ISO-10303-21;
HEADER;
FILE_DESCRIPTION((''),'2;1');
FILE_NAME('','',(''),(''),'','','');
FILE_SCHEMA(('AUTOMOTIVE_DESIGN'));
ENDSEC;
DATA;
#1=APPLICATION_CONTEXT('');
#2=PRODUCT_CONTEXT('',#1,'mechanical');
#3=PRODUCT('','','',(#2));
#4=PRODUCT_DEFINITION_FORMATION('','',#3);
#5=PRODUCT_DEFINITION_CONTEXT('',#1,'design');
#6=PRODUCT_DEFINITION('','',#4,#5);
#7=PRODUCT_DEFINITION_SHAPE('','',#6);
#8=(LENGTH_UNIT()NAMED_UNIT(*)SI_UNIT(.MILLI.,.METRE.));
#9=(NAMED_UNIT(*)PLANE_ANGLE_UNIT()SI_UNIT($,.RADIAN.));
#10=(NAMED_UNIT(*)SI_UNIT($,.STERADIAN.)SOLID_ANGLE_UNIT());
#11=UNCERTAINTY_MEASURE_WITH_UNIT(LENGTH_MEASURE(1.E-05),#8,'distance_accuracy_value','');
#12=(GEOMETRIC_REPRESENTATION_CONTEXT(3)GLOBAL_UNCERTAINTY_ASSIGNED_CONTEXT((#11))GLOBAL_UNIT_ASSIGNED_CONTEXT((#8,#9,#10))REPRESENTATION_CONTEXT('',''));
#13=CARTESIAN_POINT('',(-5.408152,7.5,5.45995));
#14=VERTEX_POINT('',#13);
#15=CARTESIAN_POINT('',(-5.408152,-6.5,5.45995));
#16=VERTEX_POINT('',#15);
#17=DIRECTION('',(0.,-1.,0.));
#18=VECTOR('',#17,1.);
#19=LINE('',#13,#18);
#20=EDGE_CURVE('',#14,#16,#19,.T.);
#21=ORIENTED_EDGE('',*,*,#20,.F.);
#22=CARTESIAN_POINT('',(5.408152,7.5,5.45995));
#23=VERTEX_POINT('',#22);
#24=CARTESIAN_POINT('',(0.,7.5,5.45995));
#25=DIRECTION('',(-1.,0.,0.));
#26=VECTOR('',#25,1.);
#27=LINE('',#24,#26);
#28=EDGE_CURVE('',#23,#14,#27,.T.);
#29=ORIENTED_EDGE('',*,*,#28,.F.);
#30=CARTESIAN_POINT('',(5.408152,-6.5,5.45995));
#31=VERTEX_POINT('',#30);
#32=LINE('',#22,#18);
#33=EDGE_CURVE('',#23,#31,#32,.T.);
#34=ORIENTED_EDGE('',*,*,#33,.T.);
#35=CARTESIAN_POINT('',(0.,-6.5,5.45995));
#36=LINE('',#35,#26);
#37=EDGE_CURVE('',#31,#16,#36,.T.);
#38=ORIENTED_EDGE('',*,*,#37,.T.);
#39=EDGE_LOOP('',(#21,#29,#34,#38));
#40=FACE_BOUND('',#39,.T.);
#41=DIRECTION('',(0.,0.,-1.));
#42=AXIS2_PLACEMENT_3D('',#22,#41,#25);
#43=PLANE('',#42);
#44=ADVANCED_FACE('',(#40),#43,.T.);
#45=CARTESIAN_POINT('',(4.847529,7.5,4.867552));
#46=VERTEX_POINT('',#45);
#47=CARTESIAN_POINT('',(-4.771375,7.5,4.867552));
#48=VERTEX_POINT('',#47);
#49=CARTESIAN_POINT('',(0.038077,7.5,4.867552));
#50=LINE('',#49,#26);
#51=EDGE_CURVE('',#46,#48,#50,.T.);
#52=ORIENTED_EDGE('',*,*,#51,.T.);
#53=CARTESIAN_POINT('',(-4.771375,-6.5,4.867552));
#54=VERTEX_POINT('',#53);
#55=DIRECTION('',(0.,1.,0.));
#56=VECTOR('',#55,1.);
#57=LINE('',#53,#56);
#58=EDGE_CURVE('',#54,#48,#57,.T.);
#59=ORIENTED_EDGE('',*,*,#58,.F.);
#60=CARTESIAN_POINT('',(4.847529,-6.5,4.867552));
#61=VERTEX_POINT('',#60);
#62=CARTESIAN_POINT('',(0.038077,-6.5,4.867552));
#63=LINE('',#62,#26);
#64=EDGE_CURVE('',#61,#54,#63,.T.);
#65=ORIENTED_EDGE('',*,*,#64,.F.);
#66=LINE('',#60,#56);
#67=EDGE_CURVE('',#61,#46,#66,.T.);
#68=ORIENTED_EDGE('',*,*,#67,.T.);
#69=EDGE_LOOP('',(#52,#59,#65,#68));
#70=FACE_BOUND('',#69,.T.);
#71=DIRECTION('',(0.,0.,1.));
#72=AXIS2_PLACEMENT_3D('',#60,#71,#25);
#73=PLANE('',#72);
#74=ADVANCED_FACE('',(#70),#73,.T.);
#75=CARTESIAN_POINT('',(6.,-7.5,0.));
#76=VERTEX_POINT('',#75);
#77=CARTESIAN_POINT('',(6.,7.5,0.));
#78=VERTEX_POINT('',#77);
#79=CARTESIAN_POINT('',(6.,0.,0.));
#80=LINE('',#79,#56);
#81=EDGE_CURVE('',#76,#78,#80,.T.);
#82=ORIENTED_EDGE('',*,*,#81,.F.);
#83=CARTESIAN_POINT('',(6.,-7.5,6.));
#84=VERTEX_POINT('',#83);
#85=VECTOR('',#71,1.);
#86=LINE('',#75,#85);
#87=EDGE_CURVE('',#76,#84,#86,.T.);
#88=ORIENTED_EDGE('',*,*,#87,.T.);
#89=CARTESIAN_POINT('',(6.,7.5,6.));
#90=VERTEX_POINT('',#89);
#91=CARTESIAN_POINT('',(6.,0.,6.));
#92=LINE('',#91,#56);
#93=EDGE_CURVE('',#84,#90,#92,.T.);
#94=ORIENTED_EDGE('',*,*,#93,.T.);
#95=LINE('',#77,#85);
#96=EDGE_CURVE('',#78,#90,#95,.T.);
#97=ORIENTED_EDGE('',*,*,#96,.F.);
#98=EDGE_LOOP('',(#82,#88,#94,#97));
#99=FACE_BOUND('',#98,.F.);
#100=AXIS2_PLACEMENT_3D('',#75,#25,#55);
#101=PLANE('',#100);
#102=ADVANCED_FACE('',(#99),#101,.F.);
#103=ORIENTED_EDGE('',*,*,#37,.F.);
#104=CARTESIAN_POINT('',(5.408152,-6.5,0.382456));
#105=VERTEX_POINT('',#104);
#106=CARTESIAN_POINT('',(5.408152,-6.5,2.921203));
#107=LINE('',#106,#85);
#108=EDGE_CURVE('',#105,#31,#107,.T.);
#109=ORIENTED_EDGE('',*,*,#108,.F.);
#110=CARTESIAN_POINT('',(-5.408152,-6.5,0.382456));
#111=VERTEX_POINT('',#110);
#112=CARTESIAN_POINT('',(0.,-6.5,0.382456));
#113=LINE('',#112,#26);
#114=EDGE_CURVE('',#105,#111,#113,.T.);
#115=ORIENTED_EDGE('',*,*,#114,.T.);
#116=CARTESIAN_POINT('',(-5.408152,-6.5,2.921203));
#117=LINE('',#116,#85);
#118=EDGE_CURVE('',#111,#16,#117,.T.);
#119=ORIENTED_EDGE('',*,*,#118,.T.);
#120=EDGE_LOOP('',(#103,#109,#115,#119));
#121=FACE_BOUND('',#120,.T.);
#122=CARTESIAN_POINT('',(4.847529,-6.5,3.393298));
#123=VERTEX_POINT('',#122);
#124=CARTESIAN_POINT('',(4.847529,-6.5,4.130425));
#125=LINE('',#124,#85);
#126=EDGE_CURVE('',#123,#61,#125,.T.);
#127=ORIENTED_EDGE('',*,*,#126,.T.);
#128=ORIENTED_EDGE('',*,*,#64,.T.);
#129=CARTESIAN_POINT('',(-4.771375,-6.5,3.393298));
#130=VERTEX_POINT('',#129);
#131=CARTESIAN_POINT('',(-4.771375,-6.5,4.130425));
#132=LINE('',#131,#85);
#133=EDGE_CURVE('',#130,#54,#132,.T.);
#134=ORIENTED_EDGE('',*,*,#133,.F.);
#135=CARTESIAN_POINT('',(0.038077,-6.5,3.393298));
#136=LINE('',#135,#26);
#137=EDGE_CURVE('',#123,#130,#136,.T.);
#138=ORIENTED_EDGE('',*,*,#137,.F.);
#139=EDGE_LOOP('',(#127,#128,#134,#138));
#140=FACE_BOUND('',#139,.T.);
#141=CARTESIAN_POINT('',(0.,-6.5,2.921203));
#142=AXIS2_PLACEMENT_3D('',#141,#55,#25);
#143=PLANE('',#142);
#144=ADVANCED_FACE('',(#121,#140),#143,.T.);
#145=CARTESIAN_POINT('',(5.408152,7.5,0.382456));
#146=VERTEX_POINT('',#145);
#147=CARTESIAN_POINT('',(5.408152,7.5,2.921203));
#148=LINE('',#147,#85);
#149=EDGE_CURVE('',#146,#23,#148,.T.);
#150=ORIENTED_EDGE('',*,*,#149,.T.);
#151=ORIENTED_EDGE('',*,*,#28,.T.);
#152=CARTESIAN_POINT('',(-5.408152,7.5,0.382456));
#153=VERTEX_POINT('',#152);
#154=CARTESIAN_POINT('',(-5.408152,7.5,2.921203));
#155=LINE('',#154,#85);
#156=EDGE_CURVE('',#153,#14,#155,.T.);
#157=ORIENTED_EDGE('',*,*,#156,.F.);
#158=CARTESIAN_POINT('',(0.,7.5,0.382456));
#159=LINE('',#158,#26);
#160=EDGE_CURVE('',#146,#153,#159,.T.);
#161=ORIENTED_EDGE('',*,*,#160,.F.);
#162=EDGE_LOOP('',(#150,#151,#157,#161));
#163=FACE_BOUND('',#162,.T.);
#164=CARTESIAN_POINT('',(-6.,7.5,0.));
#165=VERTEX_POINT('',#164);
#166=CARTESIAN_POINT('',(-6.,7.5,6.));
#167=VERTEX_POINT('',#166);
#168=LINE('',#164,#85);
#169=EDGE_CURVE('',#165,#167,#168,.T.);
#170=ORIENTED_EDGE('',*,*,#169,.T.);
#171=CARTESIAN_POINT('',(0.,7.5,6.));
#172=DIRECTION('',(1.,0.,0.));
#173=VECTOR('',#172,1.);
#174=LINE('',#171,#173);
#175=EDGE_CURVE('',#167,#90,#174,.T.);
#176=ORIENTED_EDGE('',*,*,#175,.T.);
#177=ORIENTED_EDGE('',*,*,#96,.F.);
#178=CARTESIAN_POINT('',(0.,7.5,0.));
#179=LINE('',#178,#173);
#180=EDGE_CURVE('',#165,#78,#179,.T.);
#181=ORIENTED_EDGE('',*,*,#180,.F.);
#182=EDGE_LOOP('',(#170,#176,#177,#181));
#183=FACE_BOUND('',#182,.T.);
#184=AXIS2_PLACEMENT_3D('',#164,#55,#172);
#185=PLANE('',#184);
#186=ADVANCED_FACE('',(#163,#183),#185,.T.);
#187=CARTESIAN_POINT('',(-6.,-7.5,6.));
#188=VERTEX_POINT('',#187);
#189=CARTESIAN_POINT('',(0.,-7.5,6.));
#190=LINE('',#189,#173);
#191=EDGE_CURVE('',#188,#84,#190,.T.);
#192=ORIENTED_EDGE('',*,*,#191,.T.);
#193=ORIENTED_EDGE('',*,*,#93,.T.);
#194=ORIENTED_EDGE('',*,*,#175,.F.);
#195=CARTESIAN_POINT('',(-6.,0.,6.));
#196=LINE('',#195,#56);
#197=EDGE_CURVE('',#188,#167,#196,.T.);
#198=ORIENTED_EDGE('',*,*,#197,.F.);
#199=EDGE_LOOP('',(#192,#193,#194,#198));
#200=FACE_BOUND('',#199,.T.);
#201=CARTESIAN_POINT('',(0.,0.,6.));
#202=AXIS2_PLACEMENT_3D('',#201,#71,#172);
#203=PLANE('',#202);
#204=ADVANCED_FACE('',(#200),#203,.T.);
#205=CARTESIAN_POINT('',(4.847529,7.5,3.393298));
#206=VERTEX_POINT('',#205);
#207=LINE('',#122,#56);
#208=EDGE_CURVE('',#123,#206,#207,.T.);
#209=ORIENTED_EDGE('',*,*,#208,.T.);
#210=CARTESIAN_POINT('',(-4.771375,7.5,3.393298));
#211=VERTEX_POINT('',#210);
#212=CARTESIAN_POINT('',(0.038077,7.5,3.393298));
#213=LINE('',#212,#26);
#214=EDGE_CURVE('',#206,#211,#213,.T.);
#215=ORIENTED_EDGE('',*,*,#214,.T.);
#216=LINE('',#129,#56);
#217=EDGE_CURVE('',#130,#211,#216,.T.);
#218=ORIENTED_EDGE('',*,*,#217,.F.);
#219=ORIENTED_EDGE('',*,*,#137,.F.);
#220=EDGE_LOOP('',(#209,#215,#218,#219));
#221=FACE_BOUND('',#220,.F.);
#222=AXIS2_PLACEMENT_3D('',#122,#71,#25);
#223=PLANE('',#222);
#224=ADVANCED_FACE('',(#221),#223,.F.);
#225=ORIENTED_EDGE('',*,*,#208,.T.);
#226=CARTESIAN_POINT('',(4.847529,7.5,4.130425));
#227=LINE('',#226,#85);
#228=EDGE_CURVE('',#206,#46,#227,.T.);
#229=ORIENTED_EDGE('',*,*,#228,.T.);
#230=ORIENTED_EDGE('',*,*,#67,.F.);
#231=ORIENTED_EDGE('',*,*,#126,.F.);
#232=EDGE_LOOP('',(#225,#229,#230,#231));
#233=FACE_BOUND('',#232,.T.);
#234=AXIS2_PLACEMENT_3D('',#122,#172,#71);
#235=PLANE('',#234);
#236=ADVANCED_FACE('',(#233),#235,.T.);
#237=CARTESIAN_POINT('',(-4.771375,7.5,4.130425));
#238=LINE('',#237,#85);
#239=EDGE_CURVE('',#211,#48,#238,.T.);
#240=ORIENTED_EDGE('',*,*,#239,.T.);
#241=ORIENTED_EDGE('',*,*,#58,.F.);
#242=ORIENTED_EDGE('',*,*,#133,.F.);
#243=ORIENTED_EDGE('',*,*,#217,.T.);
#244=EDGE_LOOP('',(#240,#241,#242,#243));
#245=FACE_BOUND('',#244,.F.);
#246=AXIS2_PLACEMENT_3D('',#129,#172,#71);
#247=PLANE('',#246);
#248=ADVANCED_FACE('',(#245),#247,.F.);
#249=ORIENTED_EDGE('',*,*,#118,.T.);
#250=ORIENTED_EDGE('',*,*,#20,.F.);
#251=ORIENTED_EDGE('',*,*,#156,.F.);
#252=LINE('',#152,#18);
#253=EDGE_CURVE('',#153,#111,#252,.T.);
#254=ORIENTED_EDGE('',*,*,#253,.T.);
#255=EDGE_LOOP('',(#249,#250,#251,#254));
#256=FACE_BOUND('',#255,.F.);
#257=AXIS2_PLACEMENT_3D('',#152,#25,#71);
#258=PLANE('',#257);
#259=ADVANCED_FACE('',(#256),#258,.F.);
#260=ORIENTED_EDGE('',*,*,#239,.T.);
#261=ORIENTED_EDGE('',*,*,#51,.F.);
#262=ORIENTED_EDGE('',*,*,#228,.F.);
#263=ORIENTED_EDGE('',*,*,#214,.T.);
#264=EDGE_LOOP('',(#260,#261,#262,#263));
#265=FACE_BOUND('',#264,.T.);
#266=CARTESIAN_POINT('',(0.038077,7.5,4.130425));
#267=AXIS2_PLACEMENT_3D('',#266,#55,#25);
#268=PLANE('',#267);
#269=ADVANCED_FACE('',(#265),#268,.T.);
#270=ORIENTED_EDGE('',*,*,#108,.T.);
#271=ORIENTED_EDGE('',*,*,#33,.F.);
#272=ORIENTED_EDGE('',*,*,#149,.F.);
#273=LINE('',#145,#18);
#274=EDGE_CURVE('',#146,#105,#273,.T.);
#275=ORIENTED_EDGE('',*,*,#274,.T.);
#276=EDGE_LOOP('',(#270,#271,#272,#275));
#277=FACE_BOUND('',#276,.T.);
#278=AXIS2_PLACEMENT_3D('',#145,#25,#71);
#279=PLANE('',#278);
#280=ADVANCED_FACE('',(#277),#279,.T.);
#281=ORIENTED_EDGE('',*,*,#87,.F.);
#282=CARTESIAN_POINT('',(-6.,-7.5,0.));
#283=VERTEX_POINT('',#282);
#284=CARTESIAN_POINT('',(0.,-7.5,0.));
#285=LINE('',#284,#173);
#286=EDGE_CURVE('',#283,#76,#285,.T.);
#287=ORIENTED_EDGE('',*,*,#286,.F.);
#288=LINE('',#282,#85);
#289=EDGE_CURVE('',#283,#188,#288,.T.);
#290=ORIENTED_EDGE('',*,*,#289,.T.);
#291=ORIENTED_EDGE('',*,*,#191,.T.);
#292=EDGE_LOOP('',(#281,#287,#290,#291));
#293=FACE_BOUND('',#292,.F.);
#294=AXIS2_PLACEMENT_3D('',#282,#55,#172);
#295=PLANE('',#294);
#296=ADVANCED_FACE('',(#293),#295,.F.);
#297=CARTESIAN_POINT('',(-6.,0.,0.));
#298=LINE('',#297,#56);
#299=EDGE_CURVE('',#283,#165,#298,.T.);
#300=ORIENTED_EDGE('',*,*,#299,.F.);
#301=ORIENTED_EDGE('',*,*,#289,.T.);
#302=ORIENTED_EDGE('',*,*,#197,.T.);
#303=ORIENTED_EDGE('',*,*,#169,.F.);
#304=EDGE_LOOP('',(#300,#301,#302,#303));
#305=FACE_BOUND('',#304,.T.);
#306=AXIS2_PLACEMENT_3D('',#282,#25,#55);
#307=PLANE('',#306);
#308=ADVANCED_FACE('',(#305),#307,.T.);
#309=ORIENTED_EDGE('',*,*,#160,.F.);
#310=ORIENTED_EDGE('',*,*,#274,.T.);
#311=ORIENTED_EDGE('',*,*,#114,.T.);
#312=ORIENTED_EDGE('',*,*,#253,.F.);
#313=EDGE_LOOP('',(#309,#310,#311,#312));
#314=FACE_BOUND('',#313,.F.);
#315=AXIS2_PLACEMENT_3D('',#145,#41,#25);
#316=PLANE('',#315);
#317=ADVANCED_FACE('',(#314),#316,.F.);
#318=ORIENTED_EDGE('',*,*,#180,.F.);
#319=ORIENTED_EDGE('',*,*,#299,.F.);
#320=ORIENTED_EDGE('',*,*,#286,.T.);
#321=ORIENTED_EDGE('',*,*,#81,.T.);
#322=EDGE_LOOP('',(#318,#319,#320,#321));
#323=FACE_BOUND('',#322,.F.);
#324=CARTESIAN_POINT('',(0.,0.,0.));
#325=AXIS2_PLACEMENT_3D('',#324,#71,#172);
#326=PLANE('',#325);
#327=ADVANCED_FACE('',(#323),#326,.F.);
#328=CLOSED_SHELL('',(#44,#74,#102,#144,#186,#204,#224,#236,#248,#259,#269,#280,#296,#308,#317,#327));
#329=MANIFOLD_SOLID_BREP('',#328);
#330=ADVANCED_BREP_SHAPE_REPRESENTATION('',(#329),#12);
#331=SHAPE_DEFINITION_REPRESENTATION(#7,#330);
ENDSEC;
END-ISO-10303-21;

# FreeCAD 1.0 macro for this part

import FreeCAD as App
import Part
import Sketcher
from FreeCAD import Vector
Q = App.Units.Quantity

doc = App.newDocument("Part")
body = doc.addObject("PartDesign::Body", "Body")

# Sketch on XY plane
sketch1 = doc.addObject("Sketcher::SketchObject", "Sketch")
body.addObject(sketch1)
sketch1.AttachmentSupport = (doc.XY_Plane, [""])
sketch1.MapMode = "FlatFace"
sketch1.addGeometry(Part.LineSegment(Vector(-6, 8, 0), Vector(-6, -8, 0)), False)
sketch1.addGeometry(Part.LineSegment(Vector(-6, -8, 0), Vector(6, -8, 0)), False)
sketch1.addGeometry(Part.LineSegment(Vector(6, -8, 0), Vector(6, 8, 0)), False)
sketch1.addGeometry(Part.LineSegment(Vector(6, 8, 0), Vector(-6, 8, 0)), False)
sketch1.addConstraint(Sketcher.Constraint("Coincident", 0, 2, 1, 1))
sketch1.addConstraint(Sketcher.Constraint("Coincident", 1, 2, 2, 1))
sketch1.addConstraint(Sketcher.Constraint("Coincident", 2, 2, 3, 1))
sketch1.addConstraint(Sketcher.Constraint("Coincident", 3, 2, 0, 1))
sketch1.addConstraint(Sketcher.Constraint("Vertical", 0))
sketch1.addConstraint(Sketcher.Constraint("Horizontal", 1))
sketch1.addConstraint(Sketcher.Constraint("Vertical", 2))
sketch1.addConstraint(Sketcher.Constraint("Horizontal", 3))
sketch1.addConstraint(Sketcher.Constraint("Symmetric", 0, 2, 2, 2, -1, 1))
sketch1.addConstraint(Sketcher.Constraint("DistanceX", 1, 1, 1, 2, Q("12 mm")))
sketch1.addConstraint(Sketcher.Constraint("DistanceY", 0, 2, 0, 1, Q("15 mm")))
pad1 = doc.addObject("PartDesign::Pad", "Pad")
body.addObject(pad1)
pad1.Profile = sketch1
pad1.Length = 6

# Sketch on XZ plane
sketch2 = doc.addObject("Sketcher::SketchObject", "Sketch001")
body.addObject(sketch2)
sketch2.AttachmentSupport = (doc.XZ_Plane, [""])
sketch2.MapMode = "FlatFace"
sketch2.AttachmentOffset = App.Placement(Vector(0, 0, -7.5), App.Rotation())
sketch2.addGeometry(Part.LineSegment(Vector(5, 5, 0), Vector(5, 0, 0)), False)
sketch2.addGeometry(Part.LineSegment(Vector(5, 0, 0), Vector(-5, 0, 0)), False)
sketch2.addGeometry(Part.LineSegment(Vector(-5, 0, 0), Vector(-5, 5, 0)), False)
sketch2.addGeometry(Part.LineSegment(Vector(-5, 5, 0), Vector(5, 5, 0)), False)
sketch2.addConstraint(Sketcher.Constraint("Coincident", 0, 2, 1, 1))
sketch2.addConstraint(Sketcher.Constraint("Coincident", 1, 2, 2, 1))
sketch2.addConstraint(Sketcher.Constraint("Coincident", 2, 2, 3, 1))
sketch2.addConstraint(Sketcher.Constraint("Coincident", 3, 2, 0, 1))
sketch2.addConstraint(Sketcher.Constraint("Vertical", 0))
sketch2.addConstraint(Sketcher.Constraint("Horizontal", 1))
sketch2.addConstraint(Sketcher.Constraint("Vertical", 2))
sketch2.addConstraint(Sketcher.Constraint("Horizontal", 3))
sketch2.addConstraint(Sketcher.Constraint("DistanceX", 1, 2, 1, 1, Q("10.816304 mm")))
sketch2.addConstraint(Sketcher.Constraint("DistanceY", 0, 2, 0, 1, Q("5.077495 mm")))
sketch2.addConstraint(Sketcher.Constraint("DistanceY", -1, 1, 2, 2, Q("5.45995 mm")))
sketch2.addConstraint(Sketcher.Constraint("DistanceX", -1, 1, 0, 2, Q("5.408152 mm")))
pocket1 = doc.addObject("PartDesign::Pocket", "Pocket")
body.addObject(pocket1)
pocket1.Profile = sketch2
pocket1.Length = 14
pocket1.Reversed = True

# Sketch on XZ plane
sketch3 = doc.addObject("Sketcher::SketchObject", "Sketch002")
body.addObject(sketch3)
sketch3.AttachmentSupport = (doc.XZ_Plane, [""])
sketch3.MapMode = "FlatFace"
sketch3.AttachmentOffset = App.Placement(Vector(0, 0, 6.5), App.Rotation())
sketch3.addGeometry(Part.LineSegment(Vector(4.8, 4.9, 0), Vector(4.8, 3.4, 0)), False)
sketch3.addGeometry(Part.LineSegment(Vector(4.8, 3.4, 0), Vector(-4.8, 3.4, 0)), False)
sketch3.addGeometry(Part.LineSegment(Vector(-4.8, 3.4, 0), Vector(-4.8, 4.9, 0)), False)
sketch3.addGeometry(Part.LineSegment(Vector(-4.8, 4.9, 0), Vector(4.8, 4.9, 0)), False)
sketch3.addConstraint(Sketcher.Constraint("Coincident", 0, 2, 1, 1))
sketch3.addConstraint(Sketcher.Constraint("Coincident", 1, 2, 2, 1))
sketch3.addConstraint(Sketcher.Constraint("Coincident", 2, 2, 3, 1))
sketch3.addConstraint(Sketcher.Constraint("Coincident", 3, 2, 0, 1))
sketch3.addConstraint(Sketcher.Constraint("Vertical", 0))
sketch3.addConstraint(Sketcher.Constraint("Horizontal", 1))
sketch3.addConstraint(Sketcher.Constraint("Vertical", 2))
sketch3.addConstraint(Sketcher.Constraint("Horizontal", 3))
sketch3.addConstraint(Sketcher.Constraint("DistanceY", -1, 1, 0, 2, Q("3.393298 mm")))
sketch3.addConstraint(Sketcher.Constraint("DistanceX", 1, 2, 1, 1, Q("9.618904 mm")))
sketch3.addConstraint(Sketcher.Constraint("DistanceY", 0, 2, 0, 1, Q("1.474254 mm")))
sketch3.addConstraint(Sketcher.Constraint("DistanceX", -1, 1, 0, 2, Q("4.847529 mm")))
pad2 = doc.addObject("PartDesign::Pad", "Pad001")
body.addObject(pad2)
pad2.Profile = sketch3
pad2.Length = 14
pad2.Reversed = True

doc.recompute()
